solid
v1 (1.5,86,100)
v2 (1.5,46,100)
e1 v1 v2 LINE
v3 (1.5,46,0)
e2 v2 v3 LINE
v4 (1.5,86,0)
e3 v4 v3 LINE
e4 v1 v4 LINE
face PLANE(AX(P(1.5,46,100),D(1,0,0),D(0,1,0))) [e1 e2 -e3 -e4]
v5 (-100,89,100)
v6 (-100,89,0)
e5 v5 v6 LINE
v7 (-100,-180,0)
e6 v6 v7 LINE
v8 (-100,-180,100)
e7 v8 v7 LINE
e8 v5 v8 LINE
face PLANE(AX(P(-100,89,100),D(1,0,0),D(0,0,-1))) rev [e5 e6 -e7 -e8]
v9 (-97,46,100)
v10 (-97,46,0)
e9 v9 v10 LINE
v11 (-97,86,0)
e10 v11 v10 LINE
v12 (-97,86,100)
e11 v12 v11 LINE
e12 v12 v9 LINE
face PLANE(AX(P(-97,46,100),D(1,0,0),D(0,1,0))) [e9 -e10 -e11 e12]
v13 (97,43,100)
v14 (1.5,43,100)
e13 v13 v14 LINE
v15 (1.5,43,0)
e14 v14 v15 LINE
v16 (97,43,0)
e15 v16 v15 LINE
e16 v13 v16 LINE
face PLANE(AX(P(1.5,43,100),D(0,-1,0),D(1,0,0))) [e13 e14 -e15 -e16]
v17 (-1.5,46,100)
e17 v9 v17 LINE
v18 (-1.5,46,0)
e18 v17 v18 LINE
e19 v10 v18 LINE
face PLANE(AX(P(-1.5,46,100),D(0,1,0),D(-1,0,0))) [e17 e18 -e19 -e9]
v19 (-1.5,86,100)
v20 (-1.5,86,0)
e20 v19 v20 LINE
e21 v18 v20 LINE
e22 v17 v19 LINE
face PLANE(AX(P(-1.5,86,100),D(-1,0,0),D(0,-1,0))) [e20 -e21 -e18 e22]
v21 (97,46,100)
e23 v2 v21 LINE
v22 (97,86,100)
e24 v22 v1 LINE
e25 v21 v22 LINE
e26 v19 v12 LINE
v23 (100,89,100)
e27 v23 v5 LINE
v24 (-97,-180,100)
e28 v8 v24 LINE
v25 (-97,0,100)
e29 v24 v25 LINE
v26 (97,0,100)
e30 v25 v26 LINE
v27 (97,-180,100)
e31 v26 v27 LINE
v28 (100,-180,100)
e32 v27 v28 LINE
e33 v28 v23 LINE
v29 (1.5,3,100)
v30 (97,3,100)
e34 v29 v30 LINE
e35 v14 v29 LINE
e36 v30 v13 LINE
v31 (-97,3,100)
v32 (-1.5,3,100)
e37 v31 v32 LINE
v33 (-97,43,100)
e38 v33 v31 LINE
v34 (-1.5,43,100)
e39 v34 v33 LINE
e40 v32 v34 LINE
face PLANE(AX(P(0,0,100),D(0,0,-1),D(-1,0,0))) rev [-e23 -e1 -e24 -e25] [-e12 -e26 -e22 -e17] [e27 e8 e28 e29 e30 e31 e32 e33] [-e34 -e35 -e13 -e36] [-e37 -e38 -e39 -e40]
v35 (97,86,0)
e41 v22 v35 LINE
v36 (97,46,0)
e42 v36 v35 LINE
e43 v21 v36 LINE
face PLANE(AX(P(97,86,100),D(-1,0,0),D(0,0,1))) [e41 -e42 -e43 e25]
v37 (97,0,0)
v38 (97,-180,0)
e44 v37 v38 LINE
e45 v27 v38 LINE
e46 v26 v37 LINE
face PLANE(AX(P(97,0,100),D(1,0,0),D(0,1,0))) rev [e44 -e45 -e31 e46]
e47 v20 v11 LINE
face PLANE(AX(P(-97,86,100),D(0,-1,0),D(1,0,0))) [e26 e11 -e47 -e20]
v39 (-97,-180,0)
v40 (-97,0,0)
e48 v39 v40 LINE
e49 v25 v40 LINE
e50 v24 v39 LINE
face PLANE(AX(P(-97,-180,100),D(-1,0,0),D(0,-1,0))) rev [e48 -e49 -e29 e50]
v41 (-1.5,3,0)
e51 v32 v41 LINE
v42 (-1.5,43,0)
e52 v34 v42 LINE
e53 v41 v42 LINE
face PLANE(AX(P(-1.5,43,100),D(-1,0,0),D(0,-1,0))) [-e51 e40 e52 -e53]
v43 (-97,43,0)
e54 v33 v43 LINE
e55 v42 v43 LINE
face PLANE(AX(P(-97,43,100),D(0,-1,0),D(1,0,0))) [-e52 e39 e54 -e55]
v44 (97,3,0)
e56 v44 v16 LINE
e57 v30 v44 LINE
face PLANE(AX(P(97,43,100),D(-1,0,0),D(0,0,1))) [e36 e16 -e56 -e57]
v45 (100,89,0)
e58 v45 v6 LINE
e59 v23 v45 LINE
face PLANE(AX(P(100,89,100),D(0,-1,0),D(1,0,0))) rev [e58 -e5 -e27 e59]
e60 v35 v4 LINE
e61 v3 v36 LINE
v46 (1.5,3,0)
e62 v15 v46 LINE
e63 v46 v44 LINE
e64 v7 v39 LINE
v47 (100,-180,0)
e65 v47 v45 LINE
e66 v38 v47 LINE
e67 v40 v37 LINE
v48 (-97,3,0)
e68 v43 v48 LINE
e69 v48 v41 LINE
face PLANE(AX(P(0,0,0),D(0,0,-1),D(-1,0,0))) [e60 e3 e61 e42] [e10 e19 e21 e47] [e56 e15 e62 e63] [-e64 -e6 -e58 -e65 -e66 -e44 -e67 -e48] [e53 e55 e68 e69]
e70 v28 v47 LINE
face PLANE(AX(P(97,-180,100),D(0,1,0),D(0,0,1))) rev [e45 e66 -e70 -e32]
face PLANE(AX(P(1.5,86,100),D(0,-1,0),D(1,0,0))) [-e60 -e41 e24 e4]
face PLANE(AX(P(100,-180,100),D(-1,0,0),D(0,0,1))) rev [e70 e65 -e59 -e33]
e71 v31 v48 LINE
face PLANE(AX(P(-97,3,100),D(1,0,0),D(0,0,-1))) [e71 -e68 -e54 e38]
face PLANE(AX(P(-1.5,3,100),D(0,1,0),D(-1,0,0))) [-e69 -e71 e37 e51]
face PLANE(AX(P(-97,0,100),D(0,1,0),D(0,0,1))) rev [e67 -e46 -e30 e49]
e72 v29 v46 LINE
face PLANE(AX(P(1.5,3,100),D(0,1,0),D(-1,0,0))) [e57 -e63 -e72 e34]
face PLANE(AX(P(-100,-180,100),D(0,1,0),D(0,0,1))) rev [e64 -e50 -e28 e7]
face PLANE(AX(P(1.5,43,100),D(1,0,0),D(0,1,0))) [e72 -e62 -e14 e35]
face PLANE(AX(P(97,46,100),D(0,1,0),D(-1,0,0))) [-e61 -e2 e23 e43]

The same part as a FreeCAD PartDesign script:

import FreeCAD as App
import Part
import Sketcher
Q = App.Units.Quantity

doc = App.newDocument("Part")
params = doc.addObject("Spreadsheet::Sheet", "Params")
for row, (alias, value) in enumerate([
    ("sketch1_width", "194 mm"),
    ("sketch1_width2", "3 mm"),
    ("sketch1_height", "180 mm"),
    ("sketch1_height2", "269 mm"),
    ("sketch1_height3", "40 mm"),
    ("pad1_length", "100 mm"),
], start=1):
    params.set(f"A{row}", alias)
    params.set(f"B{row}", "=" + value)
    params.setAlias(f"B{row}", alias)

body = doc.addObject("PartDesign::Body", "Body")

# Sketch on XY plane
sketch1 = body.newObject("Sketcher::SketchObject", "Sketch")
sketch1.AttachmentSupport = (doc.getObject("XY_Plane"), [""])
sketch1.MapMode = "FlatFace"
sketch1.addGeometry([
    Part.LineSegment(App.Vector(-97, 0, 0), App.Vector(97, 0, 0)),  # 0
    Part.LineSegment(App.Vector(97, 0, 0), App.Vector(97, -180, 0)),  # 1
    Part.LineSegment(App.Vector(97, -180, 0), App.Vector(100, -180, 0)),  # 2
    Part.LineSegment(App.Vector(100, -180, 0), App.Vector(100, 89, 0)),  # 3
    Part.LineSegment(App.Vector(100, 89, 0), App.Vector(-100, 89, 0)),  # 4
    Part.LineSegment(App.Vector(-100, 89, 0), App.Vector(-100, -180, 0)),  # 5
    Part.LineSegment(App.Vector(-100, -180, 0), App.Vector(-97, -180, 0)),  # 6
    Part.LineSegment(App.Vector(-97, -180, 0), App.Vector(-97, 0, 0)),  # 7
    Part.LineSegment(App.Vector(-1.5, 3, 0), App.Vector(-97, 3, 0)),  # 8
    Part.LineSegment(App.Vector(-97, 3, 0), App.Vector(-97, 43, 0)),  # 9
    Part.LineSegment(App.Vector(-97, 43, 0), App.Vector(-1.5, 43, 0)),  # 10
    Part.LineSegment(App.Vector(-1.5, 43, 0), App.Vector(-1.5, 3, 0)),  # 11
    Part.LineSegment(App.Vector(97, 3, 0), App.Vector(1.5, 3, 0)),  # 12
    Part.LineSegment(App.Vector(1.5, 3, 0), App.Vector(1.5, 43, 0)),  # 13
    Part.LineSegment(App.Vector(1.5, 43, 0), App.Vector(97, 43, 0)),  # 14
    Part.LineSegment(App.Vector(97, 43, 0), App.Vector(97, 3, 0)),  # 15
    Part.LineSegment(App.Vector(-1.5, 46, 0), App.Vector(-97, 46, 0)),  # 16
    Part.LineSegment(App.Vector(-97, 46, 0), App.Vector(-97, 86, 0)),  # 17
    Part.LineSegment(App.Vector(-97, 86, 0), App.Vector(-1.5, 86, 0)),  # 18
    Part.LineSegment(App.Vector(-1.5, 86, 0), App.Vector(-1.5, 46, 0)),  # 19
    Part.LineSegment(App.Vector(97, 46, 0), App.Vector(1.5, 46, 0)),  # 20
    Part.LineSegment(App.Vector(1.5, 46, 0), App.Vector(1.5, 86, 0)),  # 21
    Part.LineSegment(App.Vector(1.5, 86, 0), App.Vector(97, 86, 0)),  # 22
    Part.LineSegment(App.Vector(97, 86, 0), App.Vector(97, 46, 0)),  # 23
], False)
sketch1.addConstraint([
    Sketcher.Constraint("Coincident", 0, 2, 1, 1),
    Sketcher.Constraint("Coincident", 1, 2, 2, 1),
    Sketcher.Constraint("Coincident", 2, 2, 3, 1),
    Sketcher.Constraint("Coincident", 3, 2, 4, 1),
    Sketcher.Constraint("Coincident", 4, 2, 5, 1),
    Sketcher.Constraint("Coincident", 5, 2, 6, 1),
    Sketcher.Constraint("Coincident", 6, 2, 7, 1),
    Sketcher.Constraint("Coincident", 7, 2, 0, 1),
    Sketcher.Constraint("Coincident", 8, 2, 9, 1),
    Sketcher.Constraint("Coincident", 9, 2, 10, 1),
    Sketcher.Constraint("Coincident", 10, 2, 11, 1),
    Sketcher.Constraint("Coincident", 11, 2, 8, 1),
    Sketcher.Constraint("Coincident", 12, 2, 13, 1),
    Sketcher.Constraint("Coincident", 13, 2, 14, 1),
    Sketcher.Constraint("Coincident", 14, 2, 15, 1),
    Sketcher.Constraint("Coincident", 15, 2, 12, 1),
    Sketcher.Constraint("Coincident", 16, 2, 17, 1),
    Sketcher.Constraint("Coincident", 17, 2, 18, 1),
    Sketcher.Constraint("Coincident", 18, 2, 19, 1),
    Sketcher.Constraint("Coincident", 19, 2, 16, 1),
    Sketcher.Constraint("Coincident", 20, 2, 21, 1),
    Sketcher.Constraint("Coincident", 21, 2, 22, 1),
    Sketcher.Constraint("Coincident", 22, 2, 23, 1),
    Sketcher.Constraint("Coincident", 23, 2, 20, 1),
    Sketcher.Constraint("Horizontal", 0),
    Sketcher.Constraint("Vertical", 1),
    Sketcher.Constraint("Horizontal", 2),
    Sketcher.Constraint("Vertical", 3),
    Sketcher.Constraint("Horizontal", 4),
    Sketcher.Constraint("Vertical", 5),
    Sketcher.Constraint("Horizontal", 6),
    Sketcher.Constraint("Vertical", 7),
    Sketcher.Constraint("Horizontal", 8),
    Sketcher.Constraint("Vertical", 9),
    Sketcher.Constraint("Horizontal", 10),
    Sketcher.Constraint("Vertical", 11),
    Sketcher.Constraint("Horizontal", 12),
    Sketcher.Constraint("Vertical", 13),
    Sketcher.Constraint("Horizontal", 14),
    Sketcher.Constraint("Vertical", 15),
    Sketcher.Constraint("Horizontal", 16),
    Sketcher.Constraint("Vertical", 17),
    Sketcher.Constraint("Horizontal", 18),
    Sketcher.Constraint("Vertical", 19),
    Sketcher.Constraint("Horizontal", 20),
    Sketcher.Constraint("Vertical", 21),
    Sketcher.Constraint("Horizontal", 22),
    Sketcher.Constraint("Vertical", 23),
    Sketcher.Constraint("Symmetric", 0, 2, 7, 2, -1, 1),
    Sketcher.Constraint("Symmetric", 2, 2, 5, 2, -2),
    Sketcher.Constraint("Symmetric", 11, 2, 12, 2, -2),
    Sketcher.Constraint("Symmetric", 9, 2, 14, 2, -2),
    Sketcher.Constraint("Symmetric", 19, 2, 20, 2, -2),
    Sketcher.Constraint("Symmetric", 17, 2, 22, 2, -2),
    Sketcher.Constraint("Vertical", 7, 2, 8, 2),
    Sketcher.Constraint("Vertical", 9, 2, 16, 2),
    Sketcher.Constraint("Vertical", 11, 2, 18, 2),
    Sketcher.Constraint("Equal", 15, 17),
    Sketcher.Constraint("DistanceX", 0, 1, 0, 2, Q("194 mm")),
    Sketcher.Constraint("DistanceX", 2, 1, 2, 2, Q("3 mm")),
    Sketcher.Constraint("DistanceY", 1, 2, 1, 1, Q("180 mm")),
    Sketcher.Constraint("DistanceY", 3, 1, 3, 2, Q("269 mm")),
    Sketcher.Constraint("DistanceY", 9, 1, 9, 2, Q("40 mm")),
    Sketcher.Constraint("DistanceX", 8, 2, 8, 1, Q("95.5 mm")),
    Sketcher.Constraint("DistanceY", -1, 1, 8, 2, Q("3 mm")),
    Sketcher.Constraint("DistanceY", -1, 1, 16, 2, Q("46 mm")),
])
sketch1.setExpression("Constraints[58]", "Params.sketch1_width")
sketch1.setExpression("Constraints[59]", "Params.sketch1_width2")
sketch1.setExpression("Constraints[60]", "Params.sketch1_height")
sketch1.setExpression("Constraints[61]", "Params.sketch1_height2")
sketch1.setExpression("Constraints[62]", "Params.sketch1_height3")
pad1 = body.newObject("PartDesign::Pad", "Pad")
pad1.Profile = sketch1
pad1.setExpression("Length", "Params.pad1_length")

doc.recompute()
